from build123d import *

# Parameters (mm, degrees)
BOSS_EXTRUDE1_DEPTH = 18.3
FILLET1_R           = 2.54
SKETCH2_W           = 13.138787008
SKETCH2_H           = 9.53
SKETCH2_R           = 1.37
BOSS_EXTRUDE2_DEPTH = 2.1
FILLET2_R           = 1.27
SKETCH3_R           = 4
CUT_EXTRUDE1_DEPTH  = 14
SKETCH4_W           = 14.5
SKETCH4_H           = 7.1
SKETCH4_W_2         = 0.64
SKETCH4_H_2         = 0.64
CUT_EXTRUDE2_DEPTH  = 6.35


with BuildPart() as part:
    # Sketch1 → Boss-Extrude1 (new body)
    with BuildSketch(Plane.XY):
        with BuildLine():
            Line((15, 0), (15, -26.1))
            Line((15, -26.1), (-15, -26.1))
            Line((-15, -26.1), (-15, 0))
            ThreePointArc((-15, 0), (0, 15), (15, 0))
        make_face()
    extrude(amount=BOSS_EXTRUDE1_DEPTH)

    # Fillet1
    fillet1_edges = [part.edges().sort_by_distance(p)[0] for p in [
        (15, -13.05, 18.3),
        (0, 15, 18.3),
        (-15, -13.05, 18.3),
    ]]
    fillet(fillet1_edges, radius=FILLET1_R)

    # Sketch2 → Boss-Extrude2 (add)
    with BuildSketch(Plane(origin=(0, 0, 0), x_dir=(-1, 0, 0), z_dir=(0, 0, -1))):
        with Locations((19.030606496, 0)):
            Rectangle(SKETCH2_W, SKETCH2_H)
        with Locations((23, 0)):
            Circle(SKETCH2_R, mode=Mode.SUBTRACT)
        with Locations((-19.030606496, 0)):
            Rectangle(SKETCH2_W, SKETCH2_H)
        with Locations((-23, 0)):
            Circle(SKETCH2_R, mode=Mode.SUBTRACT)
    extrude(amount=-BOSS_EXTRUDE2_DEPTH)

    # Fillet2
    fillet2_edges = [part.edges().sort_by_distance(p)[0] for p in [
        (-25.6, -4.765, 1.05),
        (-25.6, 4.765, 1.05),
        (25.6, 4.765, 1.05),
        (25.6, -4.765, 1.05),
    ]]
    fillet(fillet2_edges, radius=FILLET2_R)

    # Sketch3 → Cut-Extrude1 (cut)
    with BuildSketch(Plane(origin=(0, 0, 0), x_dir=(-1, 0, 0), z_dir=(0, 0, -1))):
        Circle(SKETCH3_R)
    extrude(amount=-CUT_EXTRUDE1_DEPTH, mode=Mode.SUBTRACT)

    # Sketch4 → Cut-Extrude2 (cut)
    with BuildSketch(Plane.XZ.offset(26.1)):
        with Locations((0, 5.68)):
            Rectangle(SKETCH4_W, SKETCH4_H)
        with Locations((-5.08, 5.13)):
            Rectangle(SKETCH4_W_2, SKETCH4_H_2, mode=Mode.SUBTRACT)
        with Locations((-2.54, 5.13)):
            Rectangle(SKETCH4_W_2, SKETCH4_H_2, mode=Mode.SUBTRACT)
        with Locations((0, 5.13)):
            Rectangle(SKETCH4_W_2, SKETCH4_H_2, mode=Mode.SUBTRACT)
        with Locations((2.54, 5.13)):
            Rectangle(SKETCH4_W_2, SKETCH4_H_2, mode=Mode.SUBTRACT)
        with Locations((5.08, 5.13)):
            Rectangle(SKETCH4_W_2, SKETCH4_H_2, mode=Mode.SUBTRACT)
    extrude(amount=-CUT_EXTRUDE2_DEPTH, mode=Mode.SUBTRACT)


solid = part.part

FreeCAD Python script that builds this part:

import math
import FreeCAD as App
import Part
import Sketcher
Q = App.Units.Quantity


def edges_at(feature, points):
    """Names of the edges that pass closest to the given points."""
    edges = feature.Shape.Edges
    near = lambda p: min(range(len(edges)), key=lambda i: edges[i].distToShape(Part.Vertex(*p))[0])
    return sorted({f"Edge{near(p) + 1}" for p in points})

doc = App.newDocument("Part")
body = doc.addObject("PartDesign::Body", "Body")

# Sketch on XY plane
sketch1 = body.newObject("Sketcher::SketchObject", "Sketch")
sketch1.AttachmentSupport = (doc.getObject("XY_Plane"), [""])
sketch1.MapMode = "FlatFace"
sketch1.addGeometry([
    Part.LineSegment(App.Vector(15, -26, 0), App.Vector(15, 0, 0)),
    Part.ArcOfCircle(Part.Circle(App.Vector(0, 0, 0), App.Vector(0, 0, 1), 15), math.radians(0), math.radians(180)),
    Part.LineSegment(App.Vector(-15, 0, 0), App.Vector(-15, -26, 0)),
    Part.LineSegment(App.Vector(-15, -26, 0), App.Vector(15, -26, 0)),
], False)
sketch1.addConstraint([
    Sketcher.Constraint("Tangent", 0, 2, 1, 1),
    Sketcher.Constraint("Tangent", 1, 2, 2, 1),
    Sketcher.Constraint("Coincident", 2, 2, 3, 1),
    Sketcher.Constraint("Coincident", 3, 2, 0, 1),
    Sketcher.Constraint("Vertical", 0),
    Sketcher.Constraint("Vertical", 2),
    Sketcher.Constraint("Horizontal", 3),
    Sketcher.Constraint("Coincident", 1, 3, -1, 1),
    Sketcher.Constraint("Radius", 1, Q("15 mm")),
    Sketcher.Constraint("DistanceY", 0, 1, 0, 2, Q("26.1 mm")),
])
pad1 = body.newObject("PartDesign::Pad", "Pad")
pad1.Profile = sketch1
pad1.Length = 18.3
doc.recompute()

fillet = body.newObject("PartDesign::Fillet", "Fillet")
fillet.Base = (pad1, edges_at(pad1, [(15, -13.05, 18.3), (0, 15, 18.3), (-15, -13.05, 18.3)]))
fillet.Radius = 2.54

# Sketch on XY plane
sketch2 = body.newObject("Sketcher::SketchObject", "Sketch001")
sketch2.AttachmentSupport = (doc.getObject("XY_Plane"), [""])
sketch2.MapMode = "FlatFace"
sketch2.addGeometry([
    Part.LineSegment(App.Vector(-12.5, 4.8, 0), App.Vector(-12.5, -4.8, 0)),  # 0
    Part.LineSegment(App.Vector(-12.5, -4.8, 0), App.Vector(-25.6, -4.8, 0)),  # 1
    Part.LineSegment(App.Vector(-25.6, -4.8, 0), App.Vector(-25.6, 4.8, 0)),  # 2
    Part.LineSegment(App.Vector(-25.6, 4.8, 0), App.Vector(-12.5, 4.8, 0)),  # 3
    Part.Circle(App.Vector(-23, 0, 0), App.Vector(0, 0, 1), 1.4),  # 4
    Part.LineSegment(App.Vector(25.6, 4.8, 0), App.Vector(25.6, -4.8, 0)),  # 5
    Part.LineSegment(App.Vector(25.6, -4.8, 0), App.Vector(12.5, -4.8, 0)),  # 6
    Part.LineSegment(App.Vector(12.5, -4.8, 0), App.Vector(12.5, 4.8, 0)),  # 7
    Part.LineSegment(App.Vector(12.5, 4.8, 0), App.Vector(25.6, 4.8, 0)),  # 8
    Part.Circle(App.Vector(23, 0, 0), App.Vector(0, 0, 1), 1.4),  # 9
], False)
sketch2.addConstraint([
    Sketcher.Constraint("Coincident", 0, 2, 1, 1),
    Sketcher.Constraint("Coincident", 1, 2, 2, 1),
    Sketcher.Constraint("Coincident", 2, 2, 3, 1),
    Sketcher.Constraint("Coincident", 3, 2, 0, 1),
    Sketcher.Constraint("Coincident", 5, 2, 6, 1),
    Sketcher.Constraint("Coincident", 6, 2, 7, 1),
    Sketcher.Constraint("Coincident", 7, 2, 8, 1),
    Sketcher.Constraint("Coincident", 8, 2, 5, 1),
    Sketcher.Constraint("Vertical", 0),
    Sketcher.Constraint("Horizontal", 1),
    Sketcher.Constraint("Vertical", 2),
    Sketcher.Constraint("Horizontal", 3),
    Sketcher.Constraint("Vertical", 5),
    Sketcher.Constraint("Horizontal", 6),
    Sketcher.Constraint("Vertical", 7),
    Sketcher.Constraint("Horizontal", 8),
    Sketcher.Constraint("Equal", 4, 9),
    Sketcher.Constraint("Symmetric", 4, 3, 9, 3, -1, 1),
    Sketcher.Constraint("Symmetric", 2, 2, 5, 2, -1, 1),
    Sketcher.Constraint("Symmetric", 0, 2, 7, 2, -1, 1),
    Sketcher.Constraint("PointOnObject", 4, 3, -1),
    Sketcher.Constraint("Horizontal", 1, 2, 5, 2),
    Sketcher.Constraint("Diameter", 4, Q("2.74 mm")),
    Sketcher.Constraint("DistanceX", 4, 3, -1, 1, Q("23 mm")),
    Sketcher.Constraint("DistanceY", 0, 2, 0, 1, Q("9.53 mm")),
    Sketcher.Constraint("DistanceX", 1, 2, -1, 1, Q("25.6 mm")),
    Sketcher.Constraint("DistanceX", 1, 2, 1, 1, Q("13.138787 mm")),
])
pad2 = body.newObject("PartDesign::Pad", "Pad001")
pad2.Profile = sketch2
pad2.Length = 2.1
doc.recompute()

fillet2 = body.newObject("PartDesign::Fillet", "Fillet001")
fillet2.Base = (pad2, edges_at(pad2, [
    (-25.6, -4.765, 1.05),
    (-25.6, 4.765, 1.05),
    (25.6, 4.765, 1.05),
    (25.6, -4.765, 1.05),
]))
fillet2.Radius = 1.27

# Sketch on XY plane
sketch3 = body.newObject("Sketcher::SketchObject", "Sketch002")
sketch3.AttachmentSupport = (doc.getObject("XY_Plane"), [""])
sketch3.MapMode = "FlatFace"
sketch3.addGeometry(Part.Circle(App.Vector(0, 0, 0), App.Vector(0, 0, 1), 4), False)
sketch3.addConstraint([
    Sketcher.Constraint("Coincident", 0, 3, -1, 1),
    Sketcher.Constraint("Diameter", 0, Q("8 mm")),
])
pocket1 = body.newObject("PartDesign::Pocket", "Pocket")
pocket1.Profile = sketch3
pocket1.Length = 14
pocket1.Reversed = True

# Sketch on XZ plane
sketch4 = body.newObject("Sketcher::SketchObject", "Sketch003")
sketch4.AttachmentSupport = (doc.getObject("XZ_Plane"), [""])
sketch4.MapMode = "FlatFace"
sketch4.AttachmentOffset = App.Placement(App.Vector(0, 0, 26.1), App.Rotation())
sketch4.addGeometry([
    Part.LineSegment(App.Vector(-7.2, 9.2, 0), App.Vector(-7.2, 2.1, 0)),  # 0
    Part.LineSegment(App.Vector(-7.2, 2.1, 0), App.Vector(7.2, 2.1, 0)),  # 1
    Part.LineSegment(App.Vector(7.2, 2.1, 0), App.Vector(7.2, 9.2, 0)),  # 2
    Part.LineSegment(App.Vector(7.2, 9.2, 0), App.Vector(-7.2, 9.2, 0)),  # 3
    Part.LineSegment(App.Vector(-4.8, 4.8, 0), App.Vector(-5.4, 4.8, 0)),  # 4
    Part.LineSegment(App.Vector(-5.4, 4.8, 0), App.Vector(-5.4, 5.5, 0)),  # 5
    Part.LineSegment(App.Vector(-5.4, 5.5, 0), App.Vector(-4.8, 5.5, 0)),  # 6
    Part.LineSegment(App.Vector(-4.8, 5.5, 0), App.Vector(-4.8, 4.8, 0)),  # 7
    Part.LineSegment(App.Vector(-2.2, 4.8, 0), App.Vector(-2.9, 4.8, 0)),  # 8
    Part.LineSegment(App.Vector(-2.9, 4.8, 0), App.Vector(-2.9, 5.5, 0)),  # 9
    Part.LineSegment(App.Vector(-2.9, 5.5, 0), App.Vector(-2.2, 5.5, 0)),  # 10
    Part.LineSegment(App.Vector(-2.2, 5.5, 0), App.Vector(-2.2, 4.8, 0)),  # 11
    Part.LineSegment(App.Vector(0.3, 4.8, 0), App.Vector(-0.3, 4.8, 0)),  # 12
    Part.LineSegment(App.Vector(-0.3, 4.8, 0), App.Vector(-0.3, 5.5, 0)),  # 13
    Part.LineSegment(App.Vector(-0.3, 5.5, 0), App.Vector(0.3, 5.5, 0)),  # 14
    Part.LineSegment(App.Vector(0.3, 5.5, 0), App.Vector(0.3, 4.8, 0)),  # 15
    Part.LineSegment(App.Vector(2.9, 4.8, 0), App.Vector(2.2, 4.8, 0)),  # 16
    Part.LineSegment(App.Vector(2.2, 4.8, 0), App.Vector(2.2, 5.5, 0)),  # 17
    Part.LineSegment(App.Vector(2.2, 5.5, 0), App.Vector(2.9, 5.5, 0)),  # 18
    Part.LineSegment(App.Vector(2.9, 5.5, 0), App.Vector(2.9, 4.8, 0)),  # 19
    Part.LineSegment(App.Vector(5.4, 4.8, 0), App.Vector(4.8, 4.8, 0)),  # 20
    Part.LineSegment(App.Vector(4.8, 4.8, 0), App.Vector(4.8, 5.5, 0)),  # 21
    Part.LineSegment(App.Vector(4.8, 5.5, 0), App.Vector(5.4, 5.5, 0)),  # 22
    Part.LineSegment(App.Vector(5.4, 5.5, 0), App.Vector(5.4, 4.8, 0)),  # 23
], False)
sketch4.addConstraint([
    Sketcher.Constraint("Coincident", 0, 2, 1, 1),
    Sketcher.Constraint("Coincident", 1, 2, 2, 1),
    Sketcher.Constraint("Coincident", 2, 2, 3, 1),
    Sketcher.Constraint("Coincident", 3, 2, 0, 1),
    Sketcher.Constraint("Coincident", 4, 2, 5, 1),
    Sketcher.Constraint("Coincident", 5, 2, 6, 1),
    Sketcher.Constraint("Coincident", 6, 2, 7, 1),
    Sketcher.Constraint("Coincident", 7, 2, 4, 1),
    Sketcher.Constraint("Coincident", 8, 2, 9, 1),
    Sketcher.Constraint("Coincident", 9, 2, 10, 1),
    Sketcher.Constraint("Coincident", 10, 2, 11, 1),
    Sketcher.Constraint("Coincident", 11, 2, 8, 1),
    Sketcher.Constraint("Coincident", 12, 2, 13, 1),
    Sketcher.Constraint("Coincident", 13, 2, 14, 1),
    Sketcher.Constraint("Coincident", 14, 2, 15, 1),
    Sketcher.Constraint("Coincident", 15, 2, 12, 1),
    Sketcher.Constraint("Coincident", 16, 2, 17, 1),
    Sketcher.Constraint("Coincident", 17, 2, 18, 1),
    Sketcher.Constraint("Coincident", 18, 2, 19, 1),
    Sketcher.Constraint("Coincident", 19, 2, 16, 1),
    Sketcher.Constraint("Coincident", 20, 2, 21, 1),
    Sketcher.Constraint("Coincident", 21, 2, 22, 1),
    Sketcher.Constraint("Coincident", 22, 2, 23, 1),
    Sketcher.Constraint("Coincident", 23, 2, 20, 1),
    Sketcher.Constraint("Vertical", 0),
    Sketcher.Constraint("Horizontal", 1),
    Sketcher.Constraint("Vertical", 2),
    Sketcher.Constraint("Horizontal", 3),
    Sketcher.Constraint("Horizontal", 4),
    Sketcher.Constraint("Vertical", 5),
    Sketcher.Constraint("Horizontal", 6),
    Sketcher.Constraint("Vertical", 7),
    Sketcher.Constraint("Horizontal", 8),
    Sketcher.Constraint("Vertical", 9),
    Sketcher.Constraint("Horizontal", 10),
    Sketcher.Constraint("Vertical", 11),
    Sketcher.Constraint("Horizontal", 12),
    Sketcher.Constraint("Vertical", 13),
    Sketcher.Constraint("Horizontal", 14),
    Sketcher.Constraint("Vertical", 15),
    Sketcher.Constraint("Horizontal", 16),
    Sketcher.Constraint("Vertical", 17),
    Sketcher.Constraint("Horizontal", 18),
    Sketcher.Constraint("Vertical", 19),
    Sketcher.Constraint("Horizontal", 20),
    Sketcher.Constraint("Vertical", 21),
    Sketcher.Constraint("Horizontal", 22),
    Sketcher.Constraint("Vertical", 23),
    Sketcher.Constraint("Symmetric", 11, 2, 16, 2, -2),
    Sketcher.Constraint("Symmetric", 9, 2, 18, 2, -2),
    Sketcher.Constraint("Symmetric", 7, 2, 20, 2, -2),
    Sketcher.Constraint("Symmetric", 5, 2, 22, 2, -2),
    Sketcher.Constraint("Horizontal", 7, 2, 8, 2),
    Sketcher.Constraint("Horizontal", 6, 2, 9, 2),
    Sketcher.Constraint("Horizontal", 11, 2, 12, 2),
    Sketcher.Constraint("Horizontal", 10, 2, 13, 2),
    Sketcher.Constraint("Equal", 6, 8),
    Sketcher.Constraint("Equal", 10, 12),
    Sketcher.Constraint("Equal", 22, 5),
    Sketcher.Constraint("DistanceX", 1, 1, 1, 2, Q("14.5 mm")),
    Sketcher.Constraint("DistanceY", 0, 2, 0, 1, Q("7.1 mm")),
    Sketcher.Constraint("DistanceX", 4, 2, 4, 1, Q("0.64 mm")),
    Sketcher.Constraint("DistanceX", 4, 2, -1, 1, Q("5.4 mm")),
    Sketcher.Constraint("DistanceX", 7, 2, 8, 2, Q("1.9 mm")),
    Sketcher.Constraint("DistanceX", 11, 2, 12, 2, Q("1.9 mm")),
    Sketcher.Constraint("DistanceX", 0, 2, -1, 1, Q("7.25 mm")),
    Sketcher.Constraint("DistanceY", -1, 1, 0, 2, Q("2.13 mm")),
    Sketcher.Constraint("DistanceY", -1, 1, 4, 2, Q("4.81 mm")),
])
pocket2 = body.newObject("PartDesign::Pocket", "Pocket001")
pocket2.Profile = sketch4
pocket2.Length = 6.35

doc.recompute()
